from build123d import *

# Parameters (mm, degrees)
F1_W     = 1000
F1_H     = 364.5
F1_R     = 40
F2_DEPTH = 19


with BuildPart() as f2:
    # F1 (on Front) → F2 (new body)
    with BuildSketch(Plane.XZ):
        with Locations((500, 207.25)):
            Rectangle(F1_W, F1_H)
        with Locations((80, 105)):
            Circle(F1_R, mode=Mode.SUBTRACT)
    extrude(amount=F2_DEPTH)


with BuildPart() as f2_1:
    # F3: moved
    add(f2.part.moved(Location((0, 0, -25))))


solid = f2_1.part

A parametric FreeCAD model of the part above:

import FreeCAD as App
import Part
import Sketcher

doc = App.newDocument("Part")
body = doc.addObject("PartDesign::Body", "Body")

# Sketch on XZ plane
sketch1 = body.newObject("Sketcher::SketchObject", "Sketch")
sketch1.AttachmentSupport = (doc.getObject("XZ_Plane"), [""])
sketch1.MapMode = "FlatFace"
sketch1.addGeometry(Part.LineSegment(App.Vector(0, 390, 0), App.Vector(0, 25, 0)), False)
sketch1.addGeometry(Part.LineSegment(App.Vector(0, 25, 0), App.Vector(1000, 25, 0)), False)
sketch1.addGeometry(Part.LineSegment(App.Vector(1000, 25, 0), App.Vector(1000, 390, 0)), False)
sketch1.addGeometry(Part.LineSegment(App.Vector(1000, 390, 0), App.Vector(0, 390, 0)), False)
sketch1.addGeometry(Part.Circle(App.Vector(80, 105, 0), App.Vector(0, 0, 1), 40), False)
sketch1.addConstraint(Sketcher.Constraint("Coincident", 0, 2, 1, 1))
sketch1.addConstraint(Sketcher.Constraint("Coincident", 1, 2, 2, 1))
sketch1.addConstraint(Sketcher.Constraint("Coincident", 2, 2, 3, 1))
sketch1.addConstraint(Sketcher.Constraint("Coincident", 3, 2, 0, 1))
sketch1.addConstraint(Sketcher.Constraint("Vertical", 0))
sketch1.addConstraint(Sketcher.Constraint("Horizontal", 1))
sketch1.addConstraint(Sketcher.Constraint("Vertical", 2))
sketch1.addConstraint(Sketcher.Constraint("Horizontal", 3))
sketch1.addConstraint(Sketcher.Constraint("PointOnObject", 0, 2, -2))
sketch1.addConstraint(Sketcher.Constraint("Diameter", 4, 80.0))
sketch1.addConstraint(Sketcher.Constraint("DistanceX", 1, 1, 1, 2, 1000.0))
sketch1.addConstraint(Sketcher.Constraint("DistanceY", 0, 2, 0, 1, 364.5))
sketch1.addConstraint(Sketcher.Constraint("DistanceX", -1, 1, 4, 3, 80.0))
sketch1.addConstraint(Sketcher.Constraint("DistanceY", -1, 1, 4, 3, 105.0))
sketch1.addConstraint(Sketcher.Constraint("DistanceY", -1, 1, 0, 2, 25.0))
pad1 = body.newObject("PartDesign::Pad", "Pad")
pad1.Profile = sketch1
pad1.Length = 19
body2 = doc.addObject("PartDesign::Body", "Body001")
doc.recompute()

body.Placement = App.Placement(App.Vector(0, 0, -25), App.Rotation(App.Vector(0, 0, 1), 0))
boolean = body2.newObject("PartDesign::Boolean", "Boolean")
boolean.Type = "Fuse"
boolean.addObjects([body])

doc.recompute()
